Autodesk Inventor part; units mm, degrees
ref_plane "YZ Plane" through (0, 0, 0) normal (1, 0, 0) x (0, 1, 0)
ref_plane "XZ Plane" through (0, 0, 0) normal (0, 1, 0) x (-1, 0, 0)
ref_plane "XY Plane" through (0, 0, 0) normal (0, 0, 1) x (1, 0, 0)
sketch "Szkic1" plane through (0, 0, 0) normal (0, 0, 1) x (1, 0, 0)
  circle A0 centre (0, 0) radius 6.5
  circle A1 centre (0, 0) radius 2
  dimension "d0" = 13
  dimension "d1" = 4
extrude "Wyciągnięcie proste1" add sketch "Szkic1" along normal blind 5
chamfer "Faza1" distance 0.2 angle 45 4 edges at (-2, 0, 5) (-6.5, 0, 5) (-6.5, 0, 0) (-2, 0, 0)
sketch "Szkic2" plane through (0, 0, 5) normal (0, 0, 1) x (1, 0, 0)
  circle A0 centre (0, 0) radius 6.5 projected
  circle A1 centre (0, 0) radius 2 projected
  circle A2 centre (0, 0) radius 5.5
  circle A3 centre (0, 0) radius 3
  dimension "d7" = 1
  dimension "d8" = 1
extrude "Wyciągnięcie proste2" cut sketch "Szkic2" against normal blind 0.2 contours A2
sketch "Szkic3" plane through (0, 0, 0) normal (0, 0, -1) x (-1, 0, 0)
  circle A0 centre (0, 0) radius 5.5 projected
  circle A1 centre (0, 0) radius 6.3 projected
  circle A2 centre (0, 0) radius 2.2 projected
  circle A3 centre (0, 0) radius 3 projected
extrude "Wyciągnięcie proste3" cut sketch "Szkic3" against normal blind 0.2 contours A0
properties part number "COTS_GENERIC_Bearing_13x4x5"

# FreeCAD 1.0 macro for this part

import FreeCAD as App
import Part
import Sketcher

V = App.Vector
Q = App.Units.Quantity


def edges_at(feature, points):
    """Names of the edges that pass closest to the given points."""
    edges = feature.Shape.Edges
    near = lambda p: min(range(len(edges)), key=lambda i: edges[i].distToShape(Part.Vertex(*p))[0])
    return sorted({f"Edge{near(p) + 1}" for p in points})

doc = App.newDocument("Part")
params = doc.addObject("Spreadsheet::Sheet", "Params")
for row, (alias, value) in enumerate([
    ("sketch1_diameter", "13 mm"),
    ("sketch1_diameter2", "4 mm"),
    ("pad1_length", "5 mm"),
    ("chamfer_size", "0.2 mm"),
    ("sketch2_diameter", "11 mm"),
    ("sketch2_diameter2", "6 mm"),
    ("pocket1_length", "0.2 mm"),
    ("sketch3_diameter", "11 mm"),
    ("sketch3_diameter2", "6 mm"),
    ("pocket2_length", "0.2 mm"),
], start=1):
    params.set(f"A{row}", alias)
    params.set(f"B{row}", "=" + value)
    params.setAlias(f"B{row}", alias)

body = doc.addObject("PartDesign::Body", "Body")

# Sketch on XY plane
sketch1 = body.newObject("Sketcher::SketchObject", "Sketch")
sketch1.AttachmentSupport = (doc.getObject("XY_Plane"), [""])
sketch1.MapMode = "FlatFace"
sketch1.addGeometry(Part.Circle(V(0, 0, 0), V(0, 0, 1), 6.5), False)
sketch1.addGeometry(Part.Circle(V(0, 0, 0), V(0, 0, 1), 2), False)
sketch1.addConstraint(Sketcher.Constraint("Coincident", 0, 3, -1, 1))
sketch1.addConstraint(Sketcher.Constraint("Coincident", 1, 3, -1, 1))
sketch1.addConstraint(Sketcher.Constraint("Diameter", 0, Q("13 mm")))
sketch1.addConstraint(Sketcher.Constraint("Diameter", 1, Q("4 mm")))
sketch1.setExpression("Constraints[2]", "Params.sketch1_diameter")
sketch1.setExpression("Constraints[3]", "Params.sketch1_diameter2")
pad1 = body.newObject("PartDesign::Pad", "Pad")
pad1.Profile = sketch1
pad1.setExpression("Length", "Params.pad1_length")
doc.recompute()

chamfer = body.newObject("PartDesign::Chamfer", "Chamfer")
chamfer.Base = (pad1, edges_at(pad1, [
    (-2, 0, 5),
    (-6.5, 0, 5),
    (-6.5, 0, 0),
    (-2, 0, 0),
]))
chamfer.setExpression("Size", "Params.chamfer_size")

# Sketch on XY plane
sketch2 = body.newObject("Sketcher::SketchObject", "Sketch001")
sketch2.AttachmentSupport = (doc.getObject("XY_Plane"), [""])
sketch2.MapMode = "FlatFace"
sketch2.AttachmentOffset = App.Placement(V(0, 0, 5), App.Rotation())
sketch2.addGeometry(Part.Circle(V(0, 0, 0), V(0, 0, 1), 5.5), False)
sketch2.addGeometry(Part.Circle(V(0, 0, 0), V(0, 0, 1), 3), False)
sketch2.addConstraint(Sketcher.Constraint("Coincident", 0, 3, -1, 1))
sketch2.addConstraint(Sketcher.Constraint("Coincident", 1, 3, -1, 1))
sketch2.addConstraint(Sketcher.Constraint("Diameter", 0, Q("11 mm")))
sketch2.addConstraint(Sketcher.Constraint("Diameter", 1, Q("6 mm")))
sketch2.setExpression("Constraints[2]", "Params.sketch2_diameter")
sketch2.setExpression("Constraints[3]", "Params.sketch2_diameter2")
pocket1 = body.newObject("PartDesign::Pocket", "Pocket")
pocket1.Profile = sketch2
pocket1.setExpression("Length", "Params.pocket1_length")

# Sketch on XY plane
sketch3 = body.newObject("Sketcher::SketchObject", "Sketch002")
sketch3.AttachmentSupport = (doc.getObject("XY_Plane"), [""])
sketch3.MapMode = "FlatFace"
sketch3.addGeometry(Part.Circle(V(0, 0, 0), V(0, 0, 1), 5.5), False)
sketch3.addGeometry(Part.Circle(V(0, 0, 0), V(0, 0, 1), 3), False)
sketch3.addConstraint(Sketcher.Constraint("Coincident", 0, 3, -1, 1))
sketch3.addConstraint(Sketcher.Constraint("Coincident", 1, 3, -1, 1))
sketch3.addConstraint(Sketcher.Constraint("Diameter", 0, Q("11 mm")))
sketch3.addConstraint(Sketcher.Constraint("Diameter", 1, Q("6 mm")))
sketch3.setExpression("Constraints[2]", "Params.sketch3_diameter")
sketch3.setExpression("Constraints[3]", "Params.sketch3_diameter2")
pocket2 = body.newObject("PartDesign::Pocket", "Pocket001")
pocket2.Profile = sketch3
pocket2.setExpression("Length", "Params.pocket2_length")
pocket2.Reversed = True

doc.recompute()
